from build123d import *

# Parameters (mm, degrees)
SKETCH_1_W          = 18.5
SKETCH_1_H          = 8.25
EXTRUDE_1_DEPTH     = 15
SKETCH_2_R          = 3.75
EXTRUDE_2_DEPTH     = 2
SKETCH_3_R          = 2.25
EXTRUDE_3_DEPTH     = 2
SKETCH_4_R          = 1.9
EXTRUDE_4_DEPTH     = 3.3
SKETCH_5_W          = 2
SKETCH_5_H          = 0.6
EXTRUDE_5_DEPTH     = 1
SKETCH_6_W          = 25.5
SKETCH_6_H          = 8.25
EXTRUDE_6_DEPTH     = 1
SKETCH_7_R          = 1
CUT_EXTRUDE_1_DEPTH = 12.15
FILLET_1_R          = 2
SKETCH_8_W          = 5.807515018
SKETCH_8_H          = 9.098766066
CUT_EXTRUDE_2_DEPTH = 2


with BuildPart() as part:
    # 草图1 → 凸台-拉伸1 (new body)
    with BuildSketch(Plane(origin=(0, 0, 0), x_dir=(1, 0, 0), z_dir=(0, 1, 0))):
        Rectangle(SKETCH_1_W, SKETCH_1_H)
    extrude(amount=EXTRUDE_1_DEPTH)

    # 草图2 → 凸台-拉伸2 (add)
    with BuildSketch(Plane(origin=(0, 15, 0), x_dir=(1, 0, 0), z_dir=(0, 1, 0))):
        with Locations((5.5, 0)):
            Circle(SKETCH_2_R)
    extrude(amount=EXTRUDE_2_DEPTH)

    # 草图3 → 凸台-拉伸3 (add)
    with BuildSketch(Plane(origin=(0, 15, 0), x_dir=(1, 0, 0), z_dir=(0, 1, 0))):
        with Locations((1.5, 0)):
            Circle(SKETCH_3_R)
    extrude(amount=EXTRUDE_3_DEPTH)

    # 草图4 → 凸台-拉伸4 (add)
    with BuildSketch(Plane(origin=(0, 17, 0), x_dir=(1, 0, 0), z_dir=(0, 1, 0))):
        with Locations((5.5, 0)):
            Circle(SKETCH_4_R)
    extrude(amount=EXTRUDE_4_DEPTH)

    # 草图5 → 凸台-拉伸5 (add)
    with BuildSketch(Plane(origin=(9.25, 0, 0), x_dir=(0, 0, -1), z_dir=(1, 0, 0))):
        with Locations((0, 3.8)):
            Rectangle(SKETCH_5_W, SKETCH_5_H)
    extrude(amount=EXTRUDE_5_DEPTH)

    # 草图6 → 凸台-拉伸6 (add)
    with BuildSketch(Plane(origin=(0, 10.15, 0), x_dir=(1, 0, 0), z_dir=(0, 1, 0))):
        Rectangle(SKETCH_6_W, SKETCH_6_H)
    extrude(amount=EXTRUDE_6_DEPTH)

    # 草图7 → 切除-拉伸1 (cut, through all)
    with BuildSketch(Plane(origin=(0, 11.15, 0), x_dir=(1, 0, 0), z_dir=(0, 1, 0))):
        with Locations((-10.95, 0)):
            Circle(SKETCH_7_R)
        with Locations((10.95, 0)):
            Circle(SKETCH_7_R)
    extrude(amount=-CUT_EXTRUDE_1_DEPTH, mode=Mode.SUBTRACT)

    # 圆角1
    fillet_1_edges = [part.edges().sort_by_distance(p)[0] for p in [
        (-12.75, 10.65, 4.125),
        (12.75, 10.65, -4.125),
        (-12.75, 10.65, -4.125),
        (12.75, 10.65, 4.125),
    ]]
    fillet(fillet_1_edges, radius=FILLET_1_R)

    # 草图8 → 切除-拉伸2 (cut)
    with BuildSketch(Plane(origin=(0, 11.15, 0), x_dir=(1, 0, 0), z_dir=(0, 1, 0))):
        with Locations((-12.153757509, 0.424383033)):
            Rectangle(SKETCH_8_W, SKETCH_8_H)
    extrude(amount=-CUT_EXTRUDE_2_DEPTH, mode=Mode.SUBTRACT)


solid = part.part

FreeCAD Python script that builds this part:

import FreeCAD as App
import Part
import Sketcher
Q = App.Units.Quantity


def edges_at(feature, points):
    """Names of the edges that pass closest to the given points."""
    edges = feature.Shape.Edges
    near = lambda p: min(range(len(edges)), key=lambda i: edges[i].distToShape(Part.Vertex(*p))[0])
    return sorted({f"Edge{near(p) + 1}" for p in points})


def add_polygon(sketch, points):
    """Adds a closed chain of lines whose ends are joined by coincident constraints."""
    first, n = sketch.GeometryCount, len(points)
    for a, b in zip(points, points[1:] + points[:1]):
        sketch.addGeometry(Part.LineSegment(App.Vector(*a, 0), App.Vector(*b, 0)), False)
    for i in range(n):
        sketch.addConstraint(Sketcher.Constraint("Coincident", first + i, 2, first + (i + 1) % n, 1))

doc = App.newDocument("Part")
body = doc.addObject("PartDesign::Body", "Body")

# Sketch on XZ plane
sketch1 = body.newObject("Sketcher::SketchObject", "Sketch")
sketch1.AttachmentSupport = (doc.getObject("XZ_Plane"), [""])
sketch1.MapMode = "FlatFace"
add_polygon(sketch1, [(-9.25, -4.125), (-9.25, 4.125), (9.25, 4.125), (9.25, -4.125)])  # lines 0-3
sketch1.addConstraint([
    Sketcher.Constraint("Vertical", 0),
    Sketcher.Constraint("Horizontal", 1),
    Sketcher.Constraint("Vertical", 2),
    Sketcher.Constraint("Horizontal", 3),
    Sketcher.Constraint("Symmetric", 0, 2, 2, 2, -1, 1),
    Sketcher.Constraint("DistanceX", 1, 1, 1, 2, Q("18.5 mm")),
    Sketcher.Constraint("DistanceY", 0, 1, 0, 2, Q("8.25 mm")),
])
pad1 = body.newObject("PartDesign::Pad", "Pad")
pad1.Profile = sketch1
pad1.Length = 15
pad1.Reversed = True

# Sketch on XZ plane
sketch2 = body.newObject("Sketcher::SketchObject", "Sketch001")
sketch2.AttachmentSupport = (doc.getObject("XZ_Plane"), [""])
sketch2.MapMode = "FlatFace"
sketch2.AttachmentOffset = App.Placement(App.Vector(0, 0, -15), App.Rotation())
sketch2.addGeometry(Part.Circle(App.Vector(5.5, 0, 0), App.Vector(0, 0, 1), 3.75), False)
sketch2.addConstraint([
    Sketcher.Constraint("PointOnObject", 0, 3, -1),
    Sketcher.Constraint("Diameter", 0, Q("7.5 mm")),
    Sketcher.Constraint("DistanceX", -1, 1, 0, 3, Q("5.5 mm")),
])
pad2 = body.newObject("PartDesign::Pad", "Pad001")
pad2.Profile = sketch2
pad2.Length = 2
pad2.Reversed = True

# Sketch on XZ plane
sketch3 = body.newObject("Sketcher::SketchObject", "Sketch002")
sketch3.AttachmentSupport = (doc.getObject("XZ_Plane"), [""])
sketch3.MapMode = "FlatFace"
sketch3.AttachmentOffset = App.Placement(App.Vector(0, 0, -15), App.Rotation())
sketch3.addGeometry(Part.Circle(App.Vector(1.5, 0, 0), App.Vector(0, 0, 1), 2.25), False)
sketch3.addConstraint([
    Sketcher.Constraint("PointOnObject", 0, 3, -1),
    Sketcher.Constraint("Diameter", 0, Q("4.5 mm")),
    Sketcher.Constraint("DistanceX", -1, 1, 0, 3, Q("1.5 mm")),
])
pad3 = body.newObject("PartDesign::Pad", "Pad002")
pad3.Profile = sketch3
pad3.Length = 2
pad3.Reversed = True

# Sketch on XZ plane
sketch4 = body.newObject("Sketcher::SketchObject", "Sketch003")
sketch4.AttachmentSupport = (doc.getObject("XZ_Plane"), [""])
sketch4.MapMode = "FlatFace"
sketch4.AttachmentOffset = App.Placement(App.Vector(0, 0, -17), App.Rotation())
sketch4.addGeometry(Part.Circle(App.Vector(5.5, 0, 0), App.Vector(0, 0, 1), 1.9), False)
sketch4.addConstraint([
    Sketcher.Constraint("PointOnObject", 0, 3, -1),
    Sketcher.Constraint("Diameter", 0, Q("3.8 mm")),
    Sketcher.Constraint("DistanceX", -1, 1, 0, 3, Q("5.5 mm")),
])
pad4 = body.newObject("PartDesign::Pad", "Pad003")
pad4.Profile = sketch4
pad4.Length = 3.3
pad4.Reversed = True

# Sketch on YZ plane
sketch5 = body.newObject("Sketcher::SketchObject", "Sketch004")
sketch5.AttachmentSupport = (doc.getObject("YZ_Plane"), [""])
sketch5.MapMode = "FlatFace"
sketch5.AttachmentOffset = App.Placement(App.Vector(0, 0, 9.25), App.Rotation())
add_polygon(sketch5, [(4.1, 1), (3.5, 1), (3.5, -1), (4.1, -1)])  # lines 0-3
sketch5.addConstraint([
    Sketcher.Constraint("Horizontal", 0),
    Sketcher.Constraint("Vertical", 1),
    Sketcher.Constraint("Horizontal", 2),
    Sketcher.Constraint("Vertical", 3),
    Sketcher.Constraint("DistanceY", 1, 2, 1, 1, Q("2 mm")),
    Sketcher.Constraint("DistanceX", 0, 2, 0, 1, Q("0.6 mm")),
    Sketcher.Constraint("DistanceY", -1, 1, 0, 2, Q("1 mm")),
    Sketcher.Constraint("DistanceX", -1, 1, 0, 2, Q("3.5 mm")),
])
pad5 = body.newObject("PartDesign::Pad", "Pad004")
pad5.Profile = sketch5
pad5.Length = 1

# Sketch on XZ plane
sketch6 = body.newObject("Sketcher::SketchObject", "Sketch005")
sketch6.AttachmentSupport = (doc.getObject("XZ_Plane"), [""])
sketch6.MapMode = "FlatFace"
sketch6.AttachmentOffset = App.Placement(App.Vector(0, 0, -10.15), App.Rotation())
add_polygon(sketch6, [(-12.75, -4.125), (-12.75, 4.125), (12.75, 4.125), (12.75, -4.125)])  # lines 0-3
sketch6.addConstraint([
    Sketcher.Constraint("Vertical", 0),
    Sketcher.Constraint("Horizontal", 1),
    Sketcher.Constraint("Vertical", 2),
    Sketcher.Constraint("Horizontal", 3),
    Sketcher.Constraint("Symmetric", 0, 2, 2, 2, -1, 1),
    Sketcher.Constraint("DistanceX", 1, 1, 1, 2, Q("25.5 mm")),
    Sketcher.Constraint("DistanceY", 0, 1, 0, 2, Q("8.25 mm")),
])
pad6 = body.newObject("PartDesign::Pad", "Pad005")
pad6.Profile = sketch6
pad6.Length = 1
pad6.Reversed = True

# Sketch on XZ plane
sketch7 = body.newObject("Sketcher::SketchObject", "Sketch006")
sketch7.AttachmentSupport = (doc.getObject("XZ_Plane"), [""])
sketch7.MapMode = "FlatFace"
sketch7.AttachmentOffset = App.Placement(App.Vector(0, 0, -11.15), App.Rotation())
sketch7.addGeometry([
    Part.Circle(App.Vector(-10.95, 0, 0), App.Vector(0, 0, 1), 1),
    Part.Circle(App.Vector(10.95, 0, 0), App.Vector(0, 0, 1), 1),
], False)
sketch7.addConstraint([
    Sketcher.Constraint("Equal", 0, 1),
    Sketcher.Constraint("Symmetric", 0, 3, 1, 3, -1, 1),
    Sketcher.Constraint("PointOnObject", 0, 3, -1),
    Sketcher.Constraint("Diameter", 0, Q("2 mm")),
    Sketcher.Constraint("DistanceX", 0, 3, 1, 3, Q("21.9 mm")),
])
pocket1 = body.newObject("PartDesign::Pocket", "Pocket")
pocket1.Profile = sketch7
pocket1.Type = "ThroughAll"
pocket1.Reversed = True
doc.recompute()

fillet = body.newObject("PartDesign::Fillet", "Fillet")
fillet.Base = (pocket1, edges_at(pocket1, [
    (-12.75, 10.65, 4.125),
    (12.75, 10.65, -4.125),
    (-12.75, 10.65, -4.125),
    (12.75, 10.65, 4.125),
]))
fillet.Radius = 2

# Sketch on XZ plane
sketch8 = body.newObject("Sketcher::SketchObject", "Sketch007")
sketch8.AttachmentSupport = (doc.getObject("XZ_Plane"), [""])
sketch8.MapMode = "FlatFace"
sketch8.AttachmentOffset = App.Placement(App.Vector(0, 0, -11.15), App.Rotation())
add_polygon(sketch8, [(-15.057515, -4.973766), (-15.057515, 4.125), (-9.25, 4.125), (-9.25, -4.973766)])  # lines 0-3
sketch8.addConstraint([
    Sketcher.Constraint("Vertical", 0),
    Sketcher.Constraint("Horizontal", 1),
    Sketcher.Constraint("Vertical", 2),
    Sketcher.Constraint("Horizontal", 3),
    Sketcher.Constraint("DistanceX", 1, 2, -1, 1, Q("9.25 mm")),
    Sketcher.Constraint("DistanceY", -1, 1, 0, 2, Q("4.125 mm")),
    Sketcher.Constraint("DistanceX", 1, 1, 1, 2, Q("5.807515 mm")),
    Sketcher.Constraint("DistanceY", 0, 1, 0, 2, Q("9.098766 mm")),
])
pocket2 = body.newObject("PartDesign::Pocket", "Pocket001")
pocket2.Profile = sketch8
pocket2.Length = 2
pocket2.Reversed = True

doc.recompute()
